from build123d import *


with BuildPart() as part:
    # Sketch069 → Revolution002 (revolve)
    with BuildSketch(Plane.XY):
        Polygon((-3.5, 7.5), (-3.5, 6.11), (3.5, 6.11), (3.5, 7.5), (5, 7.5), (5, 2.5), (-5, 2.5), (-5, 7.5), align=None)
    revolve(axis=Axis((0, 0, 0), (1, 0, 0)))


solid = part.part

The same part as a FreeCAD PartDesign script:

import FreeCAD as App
import Part
import Sketcher
from FreeCAD import Vector


def add_polygon(sketch, points):
    """Adds a closed chain of lines whose ends are joined by coincident constraints."""
    first, n = sketch.GeometryCount, len(points)
    for a, b in zip(points, points[1:] + points[:1]):
        sketch.addGeometry(Part.LineSegment(App.Vector(*a, 0), App.Vector(*b, 0)), False)
    for i in range(n):
        sketch.addConstraint(Sketcher.Constraint("Coincident", first + i, 2, first + (i + 1) % n, 1))

doc = App.newDocument("Part")
body = doc.addObject("PartDesign::Body", "Body")

# Sketch on XY plane
sketch1 = body.newObject("Sketcher::SketchObject", "Sketch")
sketch1.AttachmentSupport = (doc.getObject("XY_Plane"), [""])
sketch1.MapMode = "FlatFace"
add_polygon(sketch1, [(-3.5, 6.11), (-3.5, 7.5), (-5, 7.5), (-5, 2.5), (5, 2.5), (5, 7.5), (3.5, 7.5), (3.5, 6.11)])  # lines 0-7
sketch1.addConstraint([
    Sketcher.Constraint("Vertical", 0),
    Sketcher.Constraint("Horizontal", 1),
    Sketcher.Constraint("Vertical", 2),
    Sketcher.Constraint("Horizontal", 3),
    Sketcher.Constraint("Vertical", 4),
    Sketcher.Constraint("Horizontal", 5),
    Sketcher.Constraint("Vertical", 6),
    Sketcher.Constraint("Horizontal", 7),
    Sketcher.Constraint("Symmetric", 1, 2, 4, 2, -2),
    Sketcher.Constraint("Equal", 1, 5),
    Sketcher.Constraint("DistanceX", 3, 1, 3, 2, 10.0),
    Sketcher.Constraint("DistanceX", 7, 2, 7, 1, 7.0),
    Sketcher.Constraint("DistanceY", 2, 2, 2, 1, 5.0),
    Sketcher.Constraint("DistanceY", 0, 1, 0, 2, 1.39),
    Sketcher.Constraint("DistanceY", -1, 1, 0, 2, 7.5),
])
revolution = body.newObject("PartDesign::Revolution", "Revolution")
revolution.Profile = sketch1
revolution.ReferenceAxis = (sketch1, ["H_Axis"])
revolution.Angle = 360

doc.recompute()
